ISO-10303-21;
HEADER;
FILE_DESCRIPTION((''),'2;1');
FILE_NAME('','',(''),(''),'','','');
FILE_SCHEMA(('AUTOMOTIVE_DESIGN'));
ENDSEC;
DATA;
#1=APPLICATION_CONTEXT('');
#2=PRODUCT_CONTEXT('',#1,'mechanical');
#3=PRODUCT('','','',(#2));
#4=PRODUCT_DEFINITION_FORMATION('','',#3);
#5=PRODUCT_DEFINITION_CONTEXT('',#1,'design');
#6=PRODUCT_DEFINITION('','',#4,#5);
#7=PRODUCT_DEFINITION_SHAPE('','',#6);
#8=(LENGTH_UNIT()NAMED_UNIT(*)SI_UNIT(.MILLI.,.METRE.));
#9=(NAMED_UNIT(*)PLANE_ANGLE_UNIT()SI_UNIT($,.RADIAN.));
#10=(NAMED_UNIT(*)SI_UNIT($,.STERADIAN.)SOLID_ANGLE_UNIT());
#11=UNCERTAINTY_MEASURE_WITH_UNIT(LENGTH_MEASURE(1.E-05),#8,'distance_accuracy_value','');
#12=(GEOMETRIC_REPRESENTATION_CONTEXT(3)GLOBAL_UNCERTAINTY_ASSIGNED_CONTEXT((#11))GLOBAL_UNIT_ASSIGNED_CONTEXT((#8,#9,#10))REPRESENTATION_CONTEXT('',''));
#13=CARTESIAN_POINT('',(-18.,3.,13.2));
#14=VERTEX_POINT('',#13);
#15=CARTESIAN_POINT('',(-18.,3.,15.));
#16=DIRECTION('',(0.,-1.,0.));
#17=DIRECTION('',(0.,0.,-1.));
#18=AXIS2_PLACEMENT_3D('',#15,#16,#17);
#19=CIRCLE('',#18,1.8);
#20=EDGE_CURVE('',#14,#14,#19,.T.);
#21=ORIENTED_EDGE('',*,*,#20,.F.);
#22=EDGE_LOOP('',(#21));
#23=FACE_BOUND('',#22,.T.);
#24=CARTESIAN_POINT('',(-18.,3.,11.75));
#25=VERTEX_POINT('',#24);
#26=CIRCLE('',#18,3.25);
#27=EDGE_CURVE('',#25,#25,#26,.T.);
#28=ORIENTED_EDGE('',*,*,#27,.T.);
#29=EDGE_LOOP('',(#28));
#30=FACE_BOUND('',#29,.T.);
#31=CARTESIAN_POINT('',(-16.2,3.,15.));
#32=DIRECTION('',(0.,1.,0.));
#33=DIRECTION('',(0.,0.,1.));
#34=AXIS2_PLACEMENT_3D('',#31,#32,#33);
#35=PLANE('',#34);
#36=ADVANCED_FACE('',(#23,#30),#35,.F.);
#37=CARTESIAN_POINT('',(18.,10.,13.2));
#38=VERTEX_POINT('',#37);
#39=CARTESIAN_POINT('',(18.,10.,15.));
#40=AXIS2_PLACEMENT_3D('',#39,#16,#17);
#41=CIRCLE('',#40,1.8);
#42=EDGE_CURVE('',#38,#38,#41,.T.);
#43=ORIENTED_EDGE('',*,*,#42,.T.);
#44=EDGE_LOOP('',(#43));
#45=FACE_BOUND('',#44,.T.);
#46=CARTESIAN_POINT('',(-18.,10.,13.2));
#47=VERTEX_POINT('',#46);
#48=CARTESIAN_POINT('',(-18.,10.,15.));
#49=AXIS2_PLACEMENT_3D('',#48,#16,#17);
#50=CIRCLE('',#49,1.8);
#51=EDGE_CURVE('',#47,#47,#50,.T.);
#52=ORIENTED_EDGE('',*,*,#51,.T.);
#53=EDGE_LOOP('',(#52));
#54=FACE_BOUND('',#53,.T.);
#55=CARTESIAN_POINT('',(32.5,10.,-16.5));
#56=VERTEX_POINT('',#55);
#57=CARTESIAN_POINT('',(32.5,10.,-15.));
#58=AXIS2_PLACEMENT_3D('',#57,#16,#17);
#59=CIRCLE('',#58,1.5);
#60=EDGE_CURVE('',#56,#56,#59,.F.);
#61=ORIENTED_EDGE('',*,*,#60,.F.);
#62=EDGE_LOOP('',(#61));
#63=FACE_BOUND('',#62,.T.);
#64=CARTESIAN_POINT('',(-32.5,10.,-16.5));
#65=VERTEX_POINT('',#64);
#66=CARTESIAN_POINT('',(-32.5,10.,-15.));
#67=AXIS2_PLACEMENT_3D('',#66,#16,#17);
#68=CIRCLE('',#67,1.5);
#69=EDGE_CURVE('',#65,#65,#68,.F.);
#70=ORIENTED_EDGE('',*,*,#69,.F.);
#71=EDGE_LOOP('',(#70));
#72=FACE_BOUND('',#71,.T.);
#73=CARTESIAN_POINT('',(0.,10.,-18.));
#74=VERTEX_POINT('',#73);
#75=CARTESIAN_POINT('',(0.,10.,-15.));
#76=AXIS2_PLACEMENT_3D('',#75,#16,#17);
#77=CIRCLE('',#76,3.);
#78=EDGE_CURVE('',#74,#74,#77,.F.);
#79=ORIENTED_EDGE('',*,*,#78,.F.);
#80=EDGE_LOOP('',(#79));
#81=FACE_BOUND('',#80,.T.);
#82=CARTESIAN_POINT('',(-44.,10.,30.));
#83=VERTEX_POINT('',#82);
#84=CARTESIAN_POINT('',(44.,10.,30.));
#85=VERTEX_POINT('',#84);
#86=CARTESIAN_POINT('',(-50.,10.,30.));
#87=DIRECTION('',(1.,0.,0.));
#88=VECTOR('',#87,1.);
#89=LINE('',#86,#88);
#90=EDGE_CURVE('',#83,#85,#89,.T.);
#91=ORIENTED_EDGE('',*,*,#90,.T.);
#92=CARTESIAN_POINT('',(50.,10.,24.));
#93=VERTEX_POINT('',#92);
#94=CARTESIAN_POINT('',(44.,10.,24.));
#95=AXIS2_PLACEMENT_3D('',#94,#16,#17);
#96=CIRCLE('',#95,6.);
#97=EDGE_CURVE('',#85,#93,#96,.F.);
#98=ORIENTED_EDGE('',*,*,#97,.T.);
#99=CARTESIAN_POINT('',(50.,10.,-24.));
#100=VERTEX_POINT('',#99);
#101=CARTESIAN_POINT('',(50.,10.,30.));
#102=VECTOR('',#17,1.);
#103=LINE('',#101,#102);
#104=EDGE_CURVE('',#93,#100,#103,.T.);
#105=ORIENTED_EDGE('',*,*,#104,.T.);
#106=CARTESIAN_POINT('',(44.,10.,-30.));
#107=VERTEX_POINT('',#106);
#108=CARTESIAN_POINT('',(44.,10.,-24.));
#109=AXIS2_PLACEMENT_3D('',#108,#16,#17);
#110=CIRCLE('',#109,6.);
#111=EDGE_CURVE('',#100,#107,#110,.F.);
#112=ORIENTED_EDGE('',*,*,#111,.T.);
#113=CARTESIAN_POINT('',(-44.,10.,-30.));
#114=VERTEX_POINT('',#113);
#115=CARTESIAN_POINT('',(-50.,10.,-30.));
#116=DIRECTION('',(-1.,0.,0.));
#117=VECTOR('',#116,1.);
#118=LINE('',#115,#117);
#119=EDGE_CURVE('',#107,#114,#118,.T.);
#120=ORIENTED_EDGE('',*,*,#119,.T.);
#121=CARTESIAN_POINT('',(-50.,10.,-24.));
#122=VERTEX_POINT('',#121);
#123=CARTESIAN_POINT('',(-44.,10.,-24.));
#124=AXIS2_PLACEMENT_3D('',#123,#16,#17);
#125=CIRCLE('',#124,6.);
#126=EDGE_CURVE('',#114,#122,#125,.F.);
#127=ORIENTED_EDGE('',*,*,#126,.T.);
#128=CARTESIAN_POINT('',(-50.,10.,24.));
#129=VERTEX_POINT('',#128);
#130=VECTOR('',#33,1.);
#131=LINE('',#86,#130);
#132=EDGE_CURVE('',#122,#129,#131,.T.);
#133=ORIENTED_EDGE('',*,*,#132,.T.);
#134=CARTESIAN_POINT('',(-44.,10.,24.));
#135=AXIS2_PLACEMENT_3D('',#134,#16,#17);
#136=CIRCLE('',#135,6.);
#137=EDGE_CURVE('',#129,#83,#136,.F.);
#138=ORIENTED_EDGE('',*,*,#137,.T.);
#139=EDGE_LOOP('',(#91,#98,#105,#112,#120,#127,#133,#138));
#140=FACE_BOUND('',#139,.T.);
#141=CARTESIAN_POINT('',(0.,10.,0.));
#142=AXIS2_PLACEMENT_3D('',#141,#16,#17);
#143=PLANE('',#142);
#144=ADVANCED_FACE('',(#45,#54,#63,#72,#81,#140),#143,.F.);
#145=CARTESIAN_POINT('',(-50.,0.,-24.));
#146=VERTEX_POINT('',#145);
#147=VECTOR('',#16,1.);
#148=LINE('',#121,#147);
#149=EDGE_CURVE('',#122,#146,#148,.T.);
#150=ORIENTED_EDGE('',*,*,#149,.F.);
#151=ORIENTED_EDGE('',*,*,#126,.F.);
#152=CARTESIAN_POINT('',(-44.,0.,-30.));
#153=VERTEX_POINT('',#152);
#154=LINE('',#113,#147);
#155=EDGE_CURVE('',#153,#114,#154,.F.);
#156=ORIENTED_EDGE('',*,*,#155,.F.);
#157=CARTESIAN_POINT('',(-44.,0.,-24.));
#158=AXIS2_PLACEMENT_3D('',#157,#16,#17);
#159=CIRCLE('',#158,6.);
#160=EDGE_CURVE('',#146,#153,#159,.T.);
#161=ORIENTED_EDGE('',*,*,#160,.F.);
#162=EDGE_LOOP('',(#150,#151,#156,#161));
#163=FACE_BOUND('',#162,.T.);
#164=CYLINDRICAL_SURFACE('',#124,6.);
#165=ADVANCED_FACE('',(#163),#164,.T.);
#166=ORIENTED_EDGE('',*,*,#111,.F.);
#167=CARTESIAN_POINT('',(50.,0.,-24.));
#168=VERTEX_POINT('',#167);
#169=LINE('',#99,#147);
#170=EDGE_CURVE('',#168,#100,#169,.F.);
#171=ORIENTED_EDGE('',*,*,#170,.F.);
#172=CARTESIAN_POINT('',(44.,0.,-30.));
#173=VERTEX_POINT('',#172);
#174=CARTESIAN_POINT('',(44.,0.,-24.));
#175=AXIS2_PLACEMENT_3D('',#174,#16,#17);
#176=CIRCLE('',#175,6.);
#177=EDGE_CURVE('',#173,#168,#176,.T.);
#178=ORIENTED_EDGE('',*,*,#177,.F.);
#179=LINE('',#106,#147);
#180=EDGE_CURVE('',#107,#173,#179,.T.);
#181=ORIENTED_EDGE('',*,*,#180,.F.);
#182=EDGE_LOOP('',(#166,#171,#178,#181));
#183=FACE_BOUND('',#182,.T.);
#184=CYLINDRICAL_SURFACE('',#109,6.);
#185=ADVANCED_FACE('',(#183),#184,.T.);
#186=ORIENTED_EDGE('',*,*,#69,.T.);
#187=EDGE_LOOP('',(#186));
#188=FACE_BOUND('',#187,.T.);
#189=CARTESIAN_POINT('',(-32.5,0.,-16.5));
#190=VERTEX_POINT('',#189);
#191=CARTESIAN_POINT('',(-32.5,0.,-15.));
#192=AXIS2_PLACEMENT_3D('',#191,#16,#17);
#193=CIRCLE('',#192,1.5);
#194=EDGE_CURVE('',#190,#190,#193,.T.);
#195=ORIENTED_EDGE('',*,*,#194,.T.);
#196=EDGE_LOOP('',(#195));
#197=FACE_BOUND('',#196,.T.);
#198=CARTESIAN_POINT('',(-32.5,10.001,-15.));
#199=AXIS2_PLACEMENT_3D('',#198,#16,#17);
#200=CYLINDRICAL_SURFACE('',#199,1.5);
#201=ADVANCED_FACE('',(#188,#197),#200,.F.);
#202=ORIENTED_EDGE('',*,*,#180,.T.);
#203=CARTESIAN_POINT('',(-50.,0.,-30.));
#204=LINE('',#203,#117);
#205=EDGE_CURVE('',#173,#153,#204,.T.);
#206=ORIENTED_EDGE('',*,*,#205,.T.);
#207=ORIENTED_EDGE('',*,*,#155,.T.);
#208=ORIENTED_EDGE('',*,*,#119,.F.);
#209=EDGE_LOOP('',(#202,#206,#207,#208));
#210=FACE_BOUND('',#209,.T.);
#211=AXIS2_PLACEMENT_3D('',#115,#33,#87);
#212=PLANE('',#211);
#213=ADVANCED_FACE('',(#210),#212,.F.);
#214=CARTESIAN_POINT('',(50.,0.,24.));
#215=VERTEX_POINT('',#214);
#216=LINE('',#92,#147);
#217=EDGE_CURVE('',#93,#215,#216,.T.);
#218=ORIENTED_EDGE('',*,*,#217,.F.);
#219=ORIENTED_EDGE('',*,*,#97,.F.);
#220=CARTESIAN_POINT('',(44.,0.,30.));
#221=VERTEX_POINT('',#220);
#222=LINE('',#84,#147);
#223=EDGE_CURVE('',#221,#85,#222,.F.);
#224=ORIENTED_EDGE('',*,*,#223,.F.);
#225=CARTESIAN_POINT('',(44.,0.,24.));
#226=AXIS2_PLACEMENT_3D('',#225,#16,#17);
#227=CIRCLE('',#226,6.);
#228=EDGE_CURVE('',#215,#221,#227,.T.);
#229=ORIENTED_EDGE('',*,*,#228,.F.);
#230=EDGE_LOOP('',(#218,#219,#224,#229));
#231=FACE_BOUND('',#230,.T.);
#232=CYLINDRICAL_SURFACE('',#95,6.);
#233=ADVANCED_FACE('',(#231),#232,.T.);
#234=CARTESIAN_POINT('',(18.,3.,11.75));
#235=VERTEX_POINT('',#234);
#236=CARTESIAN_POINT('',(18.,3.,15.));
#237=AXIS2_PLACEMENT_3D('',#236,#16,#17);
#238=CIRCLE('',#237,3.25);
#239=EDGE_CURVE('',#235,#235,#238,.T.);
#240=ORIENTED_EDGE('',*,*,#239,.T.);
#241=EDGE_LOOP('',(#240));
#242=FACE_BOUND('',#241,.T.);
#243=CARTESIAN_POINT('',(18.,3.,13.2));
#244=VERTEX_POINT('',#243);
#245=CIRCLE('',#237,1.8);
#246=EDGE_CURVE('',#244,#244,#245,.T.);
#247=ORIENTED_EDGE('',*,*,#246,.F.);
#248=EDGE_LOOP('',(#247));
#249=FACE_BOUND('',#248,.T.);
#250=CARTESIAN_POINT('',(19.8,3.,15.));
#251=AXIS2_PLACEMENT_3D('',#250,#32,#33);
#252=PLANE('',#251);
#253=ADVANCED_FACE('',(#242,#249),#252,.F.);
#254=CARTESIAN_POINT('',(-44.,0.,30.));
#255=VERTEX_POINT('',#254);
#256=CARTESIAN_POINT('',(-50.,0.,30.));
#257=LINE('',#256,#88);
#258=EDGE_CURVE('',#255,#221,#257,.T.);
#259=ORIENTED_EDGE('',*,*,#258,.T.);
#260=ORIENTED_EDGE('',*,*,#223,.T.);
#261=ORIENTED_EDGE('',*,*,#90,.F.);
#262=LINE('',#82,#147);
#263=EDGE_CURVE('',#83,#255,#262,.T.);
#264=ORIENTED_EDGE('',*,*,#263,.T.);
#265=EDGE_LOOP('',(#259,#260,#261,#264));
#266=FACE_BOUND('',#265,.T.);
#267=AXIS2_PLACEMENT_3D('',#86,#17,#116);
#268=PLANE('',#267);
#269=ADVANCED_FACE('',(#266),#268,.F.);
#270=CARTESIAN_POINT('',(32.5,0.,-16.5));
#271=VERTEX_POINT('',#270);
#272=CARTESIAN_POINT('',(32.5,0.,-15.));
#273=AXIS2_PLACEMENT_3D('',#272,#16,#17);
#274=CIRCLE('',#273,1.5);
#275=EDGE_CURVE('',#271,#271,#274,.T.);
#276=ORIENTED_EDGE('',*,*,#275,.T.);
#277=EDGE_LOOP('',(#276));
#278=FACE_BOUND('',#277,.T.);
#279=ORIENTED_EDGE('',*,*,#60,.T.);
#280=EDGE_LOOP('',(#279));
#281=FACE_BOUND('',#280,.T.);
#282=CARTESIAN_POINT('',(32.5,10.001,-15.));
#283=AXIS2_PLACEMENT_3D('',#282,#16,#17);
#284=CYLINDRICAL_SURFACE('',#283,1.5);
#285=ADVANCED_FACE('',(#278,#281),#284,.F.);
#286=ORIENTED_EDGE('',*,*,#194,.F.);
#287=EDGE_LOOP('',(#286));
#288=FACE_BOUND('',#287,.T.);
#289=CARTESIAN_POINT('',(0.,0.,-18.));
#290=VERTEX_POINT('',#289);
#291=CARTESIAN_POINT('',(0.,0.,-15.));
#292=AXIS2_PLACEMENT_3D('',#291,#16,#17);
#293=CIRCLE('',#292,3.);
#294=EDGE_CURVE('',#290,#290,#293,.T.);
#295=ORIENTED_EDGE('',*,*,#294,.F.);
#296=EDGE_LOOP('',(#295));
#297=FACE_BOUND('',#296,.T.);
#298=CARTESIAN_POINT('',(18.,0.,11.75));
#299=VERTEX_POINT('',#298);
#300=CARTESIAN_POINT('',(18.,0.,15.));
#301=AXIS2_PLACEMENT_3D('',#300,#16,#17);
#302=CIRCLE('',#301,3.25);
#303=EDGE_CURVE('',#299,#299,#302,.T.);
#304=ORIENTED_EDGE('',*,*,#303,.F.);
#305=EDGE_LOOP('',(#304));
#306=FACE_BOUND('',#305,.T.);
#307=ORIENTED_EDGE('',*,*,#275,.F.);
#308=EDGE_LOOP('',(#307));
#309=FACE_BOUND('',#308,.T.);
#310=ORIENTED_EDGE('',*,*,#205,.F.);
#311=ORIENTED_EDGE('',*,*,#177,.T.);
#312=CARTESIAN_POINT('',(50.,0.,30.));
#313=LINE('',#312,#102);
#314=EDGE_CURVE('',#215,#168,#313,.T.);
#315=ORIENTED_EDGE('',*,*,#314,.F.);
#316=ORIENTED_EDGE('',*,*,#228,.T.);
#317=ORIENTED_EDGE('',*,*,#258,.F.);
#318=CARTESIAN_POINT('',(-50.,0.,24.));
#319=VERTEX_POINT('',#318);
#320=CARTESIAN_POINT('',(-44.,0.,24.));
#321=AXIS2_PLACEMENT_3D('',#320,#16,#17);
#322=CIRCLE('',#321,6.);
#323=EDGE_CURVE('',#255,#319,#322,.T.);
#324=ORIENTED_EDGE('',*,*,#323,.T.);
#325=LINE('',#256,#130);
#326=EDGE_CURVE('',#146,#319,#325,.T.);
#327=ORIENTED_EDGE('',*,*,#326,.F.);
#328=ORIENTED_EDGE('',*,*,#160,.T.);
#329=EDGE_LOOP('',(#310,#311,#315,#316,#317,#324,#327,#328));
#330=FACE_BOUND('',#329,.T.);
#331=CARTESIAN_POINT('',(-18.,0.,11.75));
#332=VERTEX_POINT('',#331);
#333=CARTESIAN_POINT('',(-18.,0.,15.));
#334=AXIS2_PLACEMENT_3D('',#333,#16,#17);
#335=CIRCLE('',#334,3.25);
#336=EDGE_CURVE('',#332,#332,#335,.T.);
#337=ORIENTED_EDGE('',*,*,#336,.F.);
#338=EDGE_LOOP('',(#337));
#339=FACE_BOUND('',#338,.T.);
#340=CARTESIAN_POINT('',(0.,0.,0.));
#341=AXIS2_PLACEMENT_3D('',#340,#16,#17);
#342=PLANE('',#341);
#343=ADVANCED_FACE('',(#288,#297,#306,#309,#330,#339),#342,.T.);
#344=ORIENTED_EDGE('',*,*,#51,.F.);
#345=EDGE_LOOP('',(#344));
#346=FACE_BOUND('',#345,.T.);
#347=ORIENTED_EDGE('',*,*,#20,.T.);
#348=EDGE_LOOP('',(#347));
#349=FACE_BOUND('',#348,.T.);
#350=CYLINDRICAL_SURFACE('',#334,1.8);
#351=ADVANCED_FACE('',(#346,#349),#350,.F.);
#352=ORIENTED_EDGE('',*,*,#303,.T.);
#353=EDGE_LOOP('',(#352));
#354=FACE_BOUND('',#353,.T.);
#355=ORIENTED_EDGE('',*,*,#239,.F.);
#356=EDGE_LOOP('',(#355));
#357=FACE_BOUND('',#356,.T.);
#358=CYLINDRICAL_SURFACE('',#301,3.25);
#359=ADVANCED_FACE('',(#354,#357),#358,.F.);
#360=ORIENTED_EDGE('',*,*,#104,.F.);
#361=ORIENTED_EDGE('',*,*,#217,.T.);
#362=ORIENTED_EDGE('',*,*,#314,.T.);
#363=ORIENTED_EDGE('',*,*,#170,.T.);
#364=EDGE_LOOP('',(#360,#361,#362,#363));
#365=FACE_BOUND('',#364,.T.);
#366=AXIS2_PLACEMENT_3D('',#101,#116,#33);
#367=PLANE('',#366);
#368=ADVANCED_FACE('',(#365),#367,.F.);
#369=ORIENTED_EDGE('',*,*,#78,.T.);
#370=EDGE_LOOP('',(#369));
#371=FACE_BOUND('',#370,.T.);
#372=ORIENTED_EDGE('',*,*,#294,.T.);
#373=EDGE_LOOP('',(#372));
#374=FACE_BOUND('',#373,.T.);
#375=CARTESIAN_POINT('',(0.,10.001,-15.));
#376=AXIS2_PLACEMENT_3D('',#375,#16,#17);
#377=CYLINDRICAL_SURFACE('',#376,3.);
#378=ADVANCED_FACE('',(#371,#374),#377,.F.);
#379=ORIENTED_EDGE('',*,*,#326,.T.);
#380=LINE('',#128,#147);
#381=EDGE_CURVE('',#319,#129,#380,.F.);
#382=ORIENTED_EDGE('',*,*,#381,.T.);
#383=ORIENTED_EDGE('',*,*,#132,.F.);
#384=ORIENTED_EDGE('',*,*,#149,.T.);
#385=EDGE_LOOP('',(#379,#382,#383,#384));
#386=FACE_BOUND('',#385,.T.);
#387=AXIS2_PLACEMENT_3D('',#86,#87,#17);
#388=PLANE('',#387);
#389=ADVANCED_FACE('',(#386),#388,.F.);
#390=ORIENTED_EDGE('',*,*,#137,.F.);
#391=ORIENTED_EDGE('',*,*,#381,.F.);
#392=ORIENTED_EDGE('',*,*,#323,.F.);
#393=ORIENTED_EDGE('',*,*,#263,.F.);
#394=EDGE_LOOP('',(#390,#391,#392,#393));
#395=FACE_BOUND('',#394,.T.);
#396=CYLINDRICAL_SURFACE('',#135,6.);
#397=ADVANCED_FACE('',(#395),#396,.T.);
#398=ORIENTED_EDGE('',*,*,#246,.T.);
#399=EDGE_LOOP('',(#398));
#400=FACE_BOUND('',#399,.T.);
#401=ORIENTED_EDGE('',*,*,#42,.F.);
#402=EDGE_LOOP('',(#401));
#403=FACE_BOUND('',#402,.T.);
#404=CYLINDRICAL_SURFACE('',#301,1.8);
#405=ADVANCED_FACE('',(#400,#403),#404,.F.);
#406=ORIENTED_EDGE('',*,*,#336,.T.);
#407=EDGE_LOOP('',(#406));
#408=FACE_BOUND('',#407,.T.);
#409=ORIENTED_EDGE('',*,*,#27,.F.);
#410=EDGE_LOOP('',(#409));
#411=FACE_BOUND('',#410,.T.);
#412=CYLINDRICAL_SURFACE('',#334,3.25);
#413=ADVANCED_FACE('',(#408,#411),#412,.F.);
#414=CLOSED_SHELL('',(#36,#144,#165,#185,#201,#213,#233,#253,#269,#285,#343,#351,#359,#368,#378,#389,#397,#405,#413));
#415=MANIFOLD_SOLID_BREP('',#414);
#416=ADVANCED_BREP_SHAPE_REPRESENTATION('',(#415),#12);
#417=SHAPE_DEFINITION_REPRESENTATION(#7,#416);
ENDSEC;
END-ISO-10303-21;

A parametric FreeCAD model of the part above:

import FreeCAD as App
import Part
import Sketcher

V = App.Vector


def edges_at(feature, points):
    """Names of the edges that pass closest to the given points."""
    edges = feature.Shape.Edges
    near = lambda p: min(range(len(edges)), key=lambda i: edges[i].distToShape(Part.Vertex(*p))[0])
    return sorted({f"Edge{near(p) + 1}" for p in points})

doc = App.newDocument("Part")
body = doc.addObject("PartDesign::Body", "Body")

# Sketch on XZ plane
sketch1 = body.newObject("Sketcher::SketchObject", "Sketch")
sketch1.AttachmentSupport = (doc.getObject("XZ_Plane"), [""])
sketch1.MapMode = "FlatFace"
sketch1.addGeometry(Part.LineSegment(V(-50, -30, 0), V(-50, 30, 0)), False)
sketch1.addGeometry(Part.LineSegment(V(-50, 30, 0), V(50, 30, 0)), False)
sketch1.addGeometry(Part.LineSegment(V(50, 30, 0), V(50, -30, 0)), False)
sketch1.addGeometry(Part.LineSegment(V(50, -30, 0), V(-50, -30, 0)), False)
sketch1.addConstraint(Sketcher.Constraint("Coincident", 0, 2, 1, 1))
sketch1.addConstraint(Sketcher.Constraint("Coincident", 1, 2, 2, 1))
sketch1.addConstraint(Sketcher.Constraint("Coincident", 2, 2, 3, 1))
sketch1.addConstraint(Sketcher.Constraint("Coincident", 3, 2, 0, 1))
sketch1.addConstraint(Sketcher.Constraint("Vertical", 0))
sketch1.addConstraint(Sketcher.Constraint("Horizontal", 1))
sketch1.addConstraint(Sketcher.Constraint("Vertical", 2))
sketch1.addConstraint(Sketcher.Constraint("Horizontal", 3))
sketch1.addConstraint(Sketcher.Constraint("Symmetric", 0, 2, 2, 2, -1, 1))
sketch1.addConstraint(Sketcher.Constraint("DistanceX", 1, 1, 1, 2, 100.0))
sketch1.addConstraint(Sketcher.Constraint("DistanceY", 0, 1, 0, 2, 60.0))
pad1 = body.newObject("PartDesign::Pad", "Pad")
pad1.Profile = sketch1
pad1.Length = 10
pad1.Reversed = True

# Sketch on XZ plane
sketch2 = body.newObject("Sketcher::SketchObject", "Sketch001")
sketch2.AttachmentSupport = (doc.getObject("XZ_Plane"), [""])
sketch2.MapMode = "FlatFace"
sketch2.addGeometry(Part.Circle(V(18, 15, 0), V(0, 0, 1), 1.8), False)
sketch2.addGeometry(Part.Circle(V(-18, 15, 0), V(0, 0, 1), 1.8), False)
sketch2.addConstraint(Sketcher.Constraint("Equal", 0, 1))
sketch2.addConstraint(Sketcher.Constraint("Symmetric", 0, 3, 1, 3, -2))
sketch2.addConstraint(Sketcher.Constraint("Diameter", 0, 3.6))
sketch2.addConstraint(Sketcher.Constraint("DistanceX", -1, 1, 0, 3, 18.0))
sketch2.addConstraint(Sketcher.Constraint("DistanceY", -1, 1, 0, 3, 15.0))
doc.recompute()
hole = body.newObject("PartDesign::Hole", "Hole")
hole.Profile = sketch2
hole.ThreadType = "None"
hole.Diameter = 3.6
hole.DepthType = "ThroughAll"
hole.HoleCutType = "Counterbore"
hole.HoleCutDiameter = 6.5
hole.HoleCutDepth = 3

# Sketch on XZ plane
sketch3 = body.newObject("Sketcher::SketchObject", "Sketch002")
sketch3.AttachmentSupport = (doc.getObject("XZ_Plane"), [""])
sketch3.MapMode = "FlatFace"
sketch3.addGeometry(Part.Circle(V(0, -15, 0), V(0, 0, 1), 3), False)
sketch3.addConstraint(Sketcher.Constraint("PointOnObject", 0, 3, -2))
sketch3.addConstraint(Sketcher.Constraint("Diameter", 0, 6.0))
sketch3.addConstraint(Sketcher.Constraint("DistanceY", 0, 3, -1, 1, 15.0))
pocket1 = body.newObject("PartDesign::Pocket", "Pocket")
pocket1.Profile = sketch3
pocket1.Type = "UpToFirst"

# Sketch on XZ plane
sketch4 = body.newObject("Sketcher::SketchObject", "Sketch003")
sketch4.AttachmentSupport = (doc.getObject("XZ_Plane"), [""])
sketch4.MapMode = "FlatFace"
sketch4.addGeometry(Part.Circle(V(-32.5, -15, 0), V(0, 0, 1), 1.5), False)
sketch4.addConstraint(Sketcher.Constraint("Diameter", 0, 3.0))
sketch4.addConstraint(Sketcher.Constraint("DistanceY", 0, 3, -1, 1, 15.0))
sketch4.addConstraint(Sketcher.Constraint("DistanceX", 0, 3, -1, 1, 32.5))
pocket2 = body.newObject("PartDesign::Pocket", "Pocket001")
pocket2.Profile = sketch4
pocket2.Type = "UpToFirst"

# Sketch on XZ plane
sketch5 = body.newObject("Sketcher::SketchObject", "Sketch004")
sketch5.AttachmentSupport = (doc.getObject("XZ_Plane"), [""])
sketch5.MapMode = "FlatFace"
sketch5.addGeometry(Part.Circle(V(32.5, -15, 0), V(0, 0, 1), 1.5), False)
sketch5.addConstraint(Sketcher.Constraint("Diameter", 0, 3.0))
sketch5.addConstraint(Sketcher.Constraint("DistanceY", 0, 3, -1, 1, 15.0))
sketch5.addConstraint(Sketcher.Constraint("DistanceX", -1, 1, 0, 3, 32.5))
pocket3 = body.newObject("PartDesign::Pocket", "Pocket002")
pocket3.Profile = sketch5
pocket3.Type = "UpToFirst"
doc.recompute()

fillet = body.newObject("PartDesign::Fillet", "Fillet")
fillet.Base = (pocket3, edges_at(pocket3, [
    (50, 5, 30),
    (-50, 5, 30),
    (-50, 5, -30),
    (50, 5, -30),
]))
fillet.Radius = 6

doc.recompute()
